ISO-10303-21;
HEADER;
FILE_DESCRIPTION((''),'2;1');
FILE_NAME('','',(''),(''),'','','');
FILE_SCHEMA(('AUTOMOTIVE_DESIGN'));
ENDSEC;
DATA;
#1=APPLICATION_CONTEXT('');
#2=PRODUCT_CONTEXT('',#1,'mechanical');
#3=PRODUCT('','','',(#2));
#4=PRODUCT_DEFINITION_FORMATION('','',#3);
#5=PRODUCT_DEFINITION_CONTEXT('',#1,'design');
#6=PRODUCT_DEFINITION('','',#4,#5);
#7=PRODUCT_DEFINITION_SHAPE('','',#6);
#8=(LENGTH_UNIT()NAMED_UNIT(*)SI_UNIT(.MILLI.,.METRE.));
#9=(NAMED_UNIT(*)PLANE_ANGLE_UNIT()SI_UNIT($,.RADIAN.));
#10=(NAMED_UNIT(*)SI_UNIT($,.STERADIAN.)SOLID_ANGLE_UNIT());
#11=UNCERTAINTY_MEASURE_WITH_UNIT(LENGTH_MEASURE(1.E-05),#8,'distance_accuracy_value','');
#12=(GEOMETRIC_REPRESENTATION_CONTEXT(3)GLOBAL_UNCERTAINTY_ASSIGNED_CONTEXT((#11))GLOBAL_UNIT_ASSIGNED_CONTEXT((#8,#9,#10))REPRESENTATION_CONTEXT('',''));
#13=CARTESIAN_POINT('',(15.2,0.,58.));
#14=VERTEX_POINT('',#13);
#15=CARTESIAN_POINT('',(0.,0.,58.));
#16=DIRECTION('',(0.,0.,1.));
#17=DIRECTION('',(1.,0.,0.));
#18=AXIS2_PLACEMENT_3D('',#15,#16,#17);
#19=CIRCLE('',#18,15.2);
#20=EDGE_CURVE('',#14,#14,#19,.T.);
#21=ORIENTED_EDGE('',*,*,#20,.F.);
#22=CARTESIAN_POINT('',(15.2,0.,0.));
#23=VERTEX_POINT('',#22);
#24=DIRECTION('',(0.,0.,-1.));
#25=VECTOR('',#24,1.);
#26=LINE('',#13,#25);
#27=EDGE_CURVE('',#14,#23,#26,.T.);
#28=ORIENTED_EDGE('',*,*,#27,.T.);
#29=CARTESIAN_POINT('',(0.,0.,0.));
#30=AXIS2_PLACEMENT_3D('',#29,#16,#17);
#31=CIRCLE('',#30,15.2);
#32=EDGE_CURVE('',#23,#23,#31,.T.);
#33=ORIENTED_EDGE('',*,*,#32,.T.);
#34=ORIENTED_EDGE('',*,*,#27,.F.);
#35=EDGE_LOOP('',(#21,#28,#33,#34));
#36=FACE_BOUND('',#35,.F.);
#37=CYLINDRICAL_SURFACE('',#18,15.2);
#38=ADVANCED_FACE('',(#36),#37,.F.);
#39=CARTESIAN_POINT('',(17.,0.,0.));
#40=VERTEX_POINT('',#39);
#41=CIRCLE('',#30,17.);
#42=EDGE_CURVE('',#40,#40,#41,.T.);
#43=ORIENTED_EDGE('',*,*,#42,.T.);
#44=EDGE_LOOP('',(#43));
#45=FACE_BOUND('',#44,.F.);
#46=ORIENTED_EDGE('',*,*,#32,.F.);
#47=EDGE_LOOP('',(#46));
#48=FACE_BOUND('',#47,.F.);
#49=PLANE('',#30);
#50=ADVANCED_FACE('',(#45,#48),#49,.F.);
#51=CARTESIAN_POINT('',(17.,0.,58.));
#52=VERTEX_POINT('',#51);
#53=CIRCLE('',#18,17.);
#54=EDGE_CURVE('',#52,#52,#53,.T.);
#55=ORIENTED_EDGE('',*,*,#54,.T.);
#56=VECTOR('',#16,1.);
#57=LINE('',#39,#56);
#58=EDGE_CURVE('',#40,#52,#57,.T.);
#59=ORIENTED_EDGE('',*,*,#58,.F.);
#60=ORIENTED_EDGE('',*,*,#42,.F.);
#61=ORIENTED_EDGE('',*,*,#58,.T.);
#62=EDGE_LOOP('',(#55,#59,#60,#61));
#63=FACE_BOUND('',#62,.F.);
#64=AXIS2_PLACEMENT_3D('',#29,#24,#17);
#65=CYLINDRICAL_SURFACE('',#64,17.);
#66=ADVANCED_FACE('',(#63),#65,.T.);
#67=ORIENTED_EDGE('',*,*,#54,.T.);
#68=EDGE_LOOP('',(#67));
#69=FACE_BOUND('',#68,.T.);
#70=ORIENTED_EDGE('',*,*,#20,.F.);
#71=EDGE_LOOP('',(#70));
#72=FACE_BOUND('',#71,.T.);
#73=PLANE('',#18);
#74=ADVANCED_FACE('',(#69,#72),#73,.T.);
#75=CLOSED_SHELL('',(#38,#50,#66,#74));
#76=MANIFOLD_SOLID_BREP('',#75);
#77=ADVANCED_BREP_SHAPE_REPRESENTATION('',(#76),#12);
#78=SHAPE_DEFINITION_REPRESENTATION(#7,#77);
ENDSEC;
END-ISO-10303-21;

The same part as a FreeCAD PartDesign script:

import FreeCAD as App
import Part
import Sketcher

V = App.Vector
Q = App.Units.Quantity

doc = App.newDocument("Part")
body = doc.addObject("PartDesign::Body", "Body")

# Sketch on XY plane
sketch1 = body.newObject("Sketcher::SketchObject", "Sketch")
sketch1.AttachmentSupport = (doc.getObject("XY_Plane"), [""])
sketch1.MapMode = "FlatFace"
sketch1.addGeometry(Part.Circle(V(0, 0, 0), V(0, 0, 1), 17), False)
sketch1.addConstraint([
    Sketcher.Constraint("Coincident", 0, 3, -1, 1),
    Sketcher.Constraint("Diameter", 0, Q("34 mm")),
])
pad1 = body.newObject("PartDesign::Pad", "Pad")
pad1.Profile = sketch1
pad1.Length = 58

# Sketch on XY plane
sketch2 = body.newObject("Sketcher::SketchObject", "Sketch001")
sketch2.AttachmentSupport = (doc.getObject("XY_Plane"), [""])
sketch2.MapMode = "FlatFace"
sketch2.AttachmentOffset = App.Placement(V(0, 0, 58), App.Rotation())
sketch2.addGeometry(Part.Circle(V(0, 0, 0), V(0, 0, 1), 15), False)
sketch2.addConstraint([
    Sketcher.Constraint("Coincident", 0, 3, -1, 1),
    Sketcher.Constraint("Diameter", 0, Q("30.4 mm")),
])
pocket1 = body.newObject("PartDesign::Pocket", "Pocket")
pocket1.Profile = sketch2
pocket1.Length = 58

doc.recompute()
